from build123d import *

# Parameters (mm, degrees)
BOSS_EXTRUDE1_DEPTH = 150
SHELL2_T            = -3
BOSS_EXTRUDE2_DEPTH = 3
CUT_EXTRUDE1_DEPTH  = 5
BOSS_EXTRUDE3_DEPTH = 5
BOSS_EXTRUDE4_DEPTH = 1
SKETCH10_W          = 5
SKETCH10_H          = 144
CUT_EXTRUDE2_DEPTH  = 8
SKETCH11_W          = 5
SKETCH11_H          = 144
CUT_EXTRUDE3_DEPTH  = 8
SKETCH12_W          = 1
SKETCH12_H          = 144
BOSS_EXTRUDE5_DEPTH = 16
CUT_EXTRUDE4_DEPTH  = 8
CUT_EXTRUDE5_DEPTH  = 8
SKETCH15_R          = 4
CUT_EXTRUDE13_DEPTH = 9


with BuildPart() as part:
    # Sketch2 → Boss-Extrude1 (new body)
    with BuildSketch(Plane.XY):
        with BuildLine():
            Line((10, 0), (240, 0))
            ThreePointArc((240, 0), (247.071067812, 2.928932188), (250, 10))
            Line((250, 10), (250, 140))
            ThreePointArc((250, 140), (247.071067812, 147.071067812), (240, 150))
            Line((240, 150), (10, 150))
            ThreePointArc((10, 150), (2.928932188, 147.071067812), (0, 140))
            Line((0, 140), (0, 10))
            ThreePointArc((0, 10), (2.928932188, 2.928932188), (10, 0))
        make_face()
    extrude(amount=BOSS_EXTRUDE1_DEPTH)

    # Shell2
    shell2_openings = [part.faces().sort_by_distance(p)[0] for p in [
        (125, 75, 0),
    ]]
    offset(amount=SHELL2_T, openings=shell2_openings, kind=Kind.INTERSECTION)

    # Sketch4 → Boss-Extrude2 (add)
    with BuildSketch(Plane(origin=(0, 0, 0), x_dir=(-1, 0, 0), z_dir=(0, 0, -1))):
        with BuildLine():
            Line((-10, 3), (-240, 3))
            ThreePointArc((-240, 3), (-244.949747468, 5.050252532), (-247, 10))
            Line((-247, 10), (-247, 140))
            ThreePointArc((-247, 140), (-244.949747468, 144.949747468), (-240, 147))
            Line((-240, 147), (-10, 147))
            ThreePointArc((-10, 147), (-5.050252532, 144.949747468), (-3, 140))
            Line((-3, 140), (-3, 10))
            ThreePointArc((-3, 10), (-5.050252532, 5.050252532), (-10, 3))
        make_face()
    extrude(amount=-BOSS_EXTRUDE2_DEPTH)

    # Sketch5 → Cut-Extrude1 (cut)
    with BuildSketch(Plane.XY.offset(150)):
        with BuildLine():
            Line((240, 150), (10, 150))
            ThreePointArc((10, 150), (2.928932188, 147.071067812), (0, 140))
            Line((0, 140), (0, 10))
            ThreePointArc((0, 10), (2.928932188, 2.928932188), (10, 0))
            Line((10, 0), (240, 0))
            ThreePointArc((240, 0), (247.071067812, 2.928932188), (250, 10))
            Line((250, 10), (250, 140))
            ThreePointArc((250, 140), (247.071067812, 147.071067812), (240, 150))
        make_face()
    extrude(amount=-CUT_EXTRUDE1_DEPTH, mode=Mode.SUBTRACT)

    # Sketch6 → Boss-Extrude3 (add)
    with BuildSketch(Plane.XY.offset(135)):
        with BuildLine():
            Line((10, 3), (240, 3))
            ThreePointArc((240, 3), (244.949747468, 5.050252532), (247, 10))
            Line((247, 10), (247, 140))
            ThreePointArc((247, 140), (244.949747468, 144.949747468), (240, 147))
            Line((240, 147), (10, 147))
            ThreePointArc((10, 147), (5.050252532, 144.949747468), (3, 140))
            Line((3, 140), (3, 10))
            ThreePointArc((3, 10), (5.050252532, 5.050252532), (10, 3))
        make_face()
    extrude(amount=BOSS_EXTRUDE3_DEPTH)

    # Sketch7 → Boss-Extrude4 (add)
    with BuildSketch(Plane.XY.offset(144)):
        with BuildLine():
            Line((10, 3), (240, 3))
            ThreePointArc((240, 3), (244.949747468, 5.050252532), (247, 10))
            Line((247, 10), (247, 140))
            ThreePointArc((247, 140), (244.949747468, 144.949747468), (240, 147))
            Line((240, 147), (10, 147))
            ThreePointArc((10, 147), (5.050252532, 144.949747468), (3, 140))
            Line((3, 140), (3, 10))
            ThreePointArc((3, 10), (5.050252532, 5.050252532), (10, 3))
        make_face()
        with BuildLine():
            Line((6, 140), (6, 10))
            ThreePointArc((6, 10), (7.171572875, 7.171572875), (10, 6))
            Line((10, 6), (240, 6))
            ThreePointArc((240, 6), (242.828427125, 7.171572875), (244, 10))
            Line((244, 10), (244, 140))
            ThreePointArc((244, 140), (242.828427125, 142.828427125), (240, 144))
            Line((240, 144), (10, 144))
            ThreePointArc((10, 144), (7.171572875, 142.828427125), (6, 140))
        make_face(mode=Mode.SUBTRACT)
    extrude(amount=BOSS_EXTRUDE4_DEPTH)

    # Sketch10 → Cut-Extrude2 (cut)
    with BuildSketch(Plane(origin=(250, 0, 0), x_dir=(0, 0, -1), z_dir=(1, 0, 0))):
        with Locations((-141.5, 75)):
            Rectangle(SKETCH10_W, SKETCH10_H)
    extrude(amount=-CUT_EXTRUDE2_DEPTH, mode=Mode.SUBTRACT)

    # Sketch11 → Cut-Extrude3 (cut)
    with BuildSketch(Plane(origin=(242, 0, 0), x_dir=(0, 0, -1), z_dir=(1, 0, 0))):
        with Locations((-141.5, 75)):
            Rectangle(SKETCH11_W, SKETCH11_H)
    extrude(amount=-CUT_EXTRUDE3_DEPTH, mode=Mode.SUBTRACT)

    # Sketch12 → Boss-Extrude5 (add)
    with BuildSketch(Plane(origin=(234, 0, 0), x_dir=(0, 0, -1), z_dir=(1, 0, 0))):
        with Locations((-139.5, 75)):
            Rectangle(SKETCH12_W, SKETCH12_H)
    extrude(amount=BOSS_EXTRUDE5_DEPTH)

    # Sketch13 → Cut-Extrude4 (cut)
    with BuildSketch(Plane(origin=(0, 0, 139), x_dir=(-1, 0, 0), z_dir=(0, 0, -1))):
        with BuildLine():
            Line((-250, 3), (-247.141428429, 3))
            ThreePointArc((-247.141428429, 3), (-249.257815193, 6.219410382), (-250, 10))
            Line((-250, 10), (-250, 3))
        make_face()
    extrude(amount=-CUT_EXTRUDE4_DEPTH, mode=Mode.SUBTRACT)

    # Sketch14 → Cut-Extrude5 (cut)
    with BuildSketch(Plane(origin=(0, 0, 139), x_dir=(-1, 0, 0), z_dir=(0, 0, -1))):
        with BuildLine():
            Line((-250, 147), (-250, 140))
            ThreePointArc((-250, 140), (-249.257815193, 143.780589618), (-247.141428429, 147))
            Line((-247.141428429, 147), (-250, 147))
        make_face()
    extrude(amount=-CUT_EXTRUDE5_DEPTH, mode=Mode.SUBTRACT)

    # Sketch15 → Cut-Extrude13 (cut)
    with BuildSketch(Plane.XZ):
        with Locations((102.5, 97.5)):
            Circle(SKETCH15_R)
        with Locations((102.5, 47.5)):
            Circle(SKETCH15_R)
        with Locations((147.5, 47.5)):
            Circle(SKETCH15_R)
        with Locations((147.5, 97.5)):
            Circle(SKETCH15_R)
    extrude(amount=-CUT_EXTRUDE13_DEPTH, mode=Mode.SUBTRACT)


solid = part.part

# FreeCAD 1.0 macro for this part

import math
import FreeCAD as App
import Part
import Sketcher


def faces_at(feature, points):
    """Names of the faces that lie closest to the given points."""
    faces = feature.Shape.Faces
    near = lambda p: min(range(len(faces)), key=lambda i: faces[i].distToShape(Part.Vertex(*p))[0])
    return sorted({f"Face{near(p) + 1}" for p in points})

doc = App.newDocument("Part")
body = doc.addObject("PartDesign::Body", "Body")

# Sketch on XY plane
sketch1 = body.newObject("Sketcher::SketchObject", "Sketch")
sketch1.AttachmentSupport = (doc.getObject("XY_Plane"), [""])
sketch1.MapMode = "FlatFace"
sketch1.addGeometry([
    Part.LineSegment(App.Vector(10, 0, 0), App.Vector(240, 0, 0)),  # 0
    Part.ArcOfCircle(Part.Circle(App.Vector(240, 10, 0), App.Vector(0, 0, 1), 10), math.radians(-90), math.radians(0)),  # 1
    Part.LineSegment(App.Vector(250, 10, 0), App.Vector(250, 140, 0)),  # 2
    Part.ArcOfCircle(Part.Circle(App.Vector(240, 140, 0), App.Vector(0, 0, 1), 10), math.radians(0), math.radians(90)),  # 3
    Part.LineSegment(App.Vector(240, 150, 0), App.Vector(10, 150, 0)),  # 4
    Part.ArcOfCircle(Part.Circle(App.Vector(10, 140, 0), App.Vector(0, 0, 1), 10), math.radians(90), math.radians(180)),  # 5
    Part.LineSegment(App.Vector(0, 140, 0), App.Vector(0, 10, 0)),  # 6
    Part.ArcOfCircle(Part.Circle(App.Vector(10, 10, 0), App.Vector(0, 0, 1), 10), math.radians(180), math.radians(270)),  # 7
], False)
sketch1.addConstraint([
    Sketcher.Constraint("Tangent", 0, 2, 1, 1),
    Sketcher.Constraint("Tangent", 1, 2, 2, 1),
    Sketcher.Constraint("Tangent", 2, 2, 3, 1),
    Sketcher.Constraint("Tangent", 3, 2, 4, 1),
    Sketcher.Constraint("Tangent", 4, 2, 5, 1),
    Sketcher.Constraint("Tangent", 5, 2, 6, 1),
    Sketcher.Constraint("Tangent", 6, 2, 7, 1),
    Sketcher.Constraint("Tangent", 7, 2, 0, 1),
    Sketcher.Constraint("Horizontal", 0),
    Sketcher.Constraint("Vertical", 2),
    Sketcher.Constraint("Horizontal", 4),
    Sketcher.Constraint("Vertical", 6),
    Sketcher.Constraint("Equal", 1, 3),
    Sketcher.Constraint("Equal", 3, 5),
    Sketcher.Constraint("Equal", 5, 7),
    Sketcher.Constraint("PointOnObject", 0, 2, -1),
    Sketcher.Constraint("PointOnObject", 5, 2, -2),
    Sketcher.Constraint("Radius", 1, 10.0),
    Sketcher.Constraint("DistanceX", 0, 1, 0, 2, 230.0),
    Sketcher.Constraint("DistanceY", 2, 1, 2, 2, 130.0),
])
pad1 = body.newObject("PartDesign::Pad", "Pad")
pad1.Profile = sketch1
pad1.Length = 150
doc.recompute()

thickness = body.newObject("PartDesign::Thickness", "Thickness")
thickness.Base = (pad1, faces_at(pad1, [(125, 75, 0)]))
thickness.Value = 3
thickness.Reversed = True
thickness.Join = "Intersection"

# Sketch on XY plane
sketch2 = body.newObject("Sketcher::SketchObject", "Sketch001")
sketch2.AttachmentSupport = (doc.getObject("XY_Plane"), [""])
sketch2.MapMode = "FlatFace"
sketch2.addGeometry([
    Part.LineSegment(App.Vector(240, 3, 0), App.Vector(10, 3, 0)),  # 0
    Part.ArcOfCircle(Part.Circle(App.Vector(10, 10, 0), App.Vector(0, 0, 1), 7), math.radians(-180), math.radians(-90)),  # 1
    Part.LineSegment(App.Vector(3, 10, 0), App.Vector(3, 140, 0)),  # 2
    Part.ArcOfCircle(Part.Circle(App.Vector(10, 140, 0), App.Vector(0, 0, 1), 7), math.radians(90), math.radians(180)),  # 3
    Part.LineSegment(App.Vector(10, 147, 0), App.Vector(240, 147, 0)),  # 4
    Part.ArcOfCircle(Part.Circle(App.Vector(240, 140, 0), App.Vector(0, 0, 1), 7), math.radians(0), math.radians(90)),  # 5
    Part.LineSegment(App.Vector(247, 140, 0), App.Vector(247, 10, 0)),  # 6
    Part.ArcOfCircle(Part.Circle(App.Vector(240, 10, 0), App.Vector(0, 0, 1), 7), math.radians(-90), math.radians(0)),  # 7
], False)
sketch2.addConstraint([
    Sketcher.Constraint("Tangent", 0, 2, 1, 2),
    Sketcher.Constraint("Tangent", 1, 1, 2, 1),
    Sketcher.Constraint("Tangent", 2, 2, 3, 2),
    Sketcher.Constraint("Tangent", 3, 1, 4, 1),
    Sketcher.Constraint("Tangent", 4, 2, 5, 2),
    Sketcher.Constraint("Tangent", 5, 1, 6, 1),
    Sketcher.Constraint("Tangent", 6, 2, 7, 2),
    Sketcher.Constraint("Tangent", 7, 1, 0, 1),
    Sketcher.Constraint("Horizontal", 0),
    Sketcher.Constraint("Vertical", 2),
    Sketcher.Constraint("Horizontal", 4),
    Sketcher.Constraint("Vertical", 6),
    Sketcher.Constraint("Equal", 1, 3),
    Sketcher.Constraint("Equal", 3, 5),
    Sketcher.Constraint("Equal", 5, 7),
    Sketcher.Constraint("Radius", 1, 7.0),
    Sketcher.Constraint("DistanceX", 0, 2, 0, 1, 230.0),
    Sketcher.Constraint("DistanceY", 2, 1, 2, 2, 130.0),
    Sketcher.Constraint("DistanceX", -1, 1, 1, 3, 10.0),
    Sketcher.Constraint("DistanceY", -1, 1, 1, 3, 10.0),
])
pad2 = body.newObject("PartDesign::Pad", "Pad001")
pad2.Profile = sketch2
pad2.Length = 3

# Sketch on XY plane
sketch3 = body.newObject("Sketcher::SketchObject", "Sketch002")
sketch3.AttachmentSupport = (doc.getObject("XY_Plane"), [""])
sketch3.MapMode = "FlatFace"
sketch3.AttachmentOffset = App.Placement(App.Vector(0, 0, 150), App.Rotation())
sketch3.addGeometry([
    Part.LineSegment(App.Vector(240, 150, 0), App.Vector(10, 150, 0)),  # 0
    Part.ArcOfCircle(Part.Circle(App.Vector(10, 140, 0), App.Vector(0, 0, 1), 10), math.radians(90), math.radians(180)),  # 1
    Part.LineSegment(App.Vector(0, 140, 0), App.Vector(0, 10, 0)),  # 2
    Part.ArcOfCircle(Part.Circle(App.Vector(10, 10, 0), App.Vector(0, 0, 1), 10), math.radians(180), math.radians(270)),  # 3
    Part.LineSegment(App.Vector(10, 0, 0), App.Vector(240, 0, 0)),  # 4
    Part.ArcOfCircle(Part.Circle(App.Vector(240, 10, 0), App.Vector(0, 0, 1), 10), math.radians(-90), math.radians(0)),  # 5
    Part.LineSegment(App.Vector(250, 10, 0), App.Vector(250, 140, 0)),  # 6
    Part.ArcOfCircle(Part.Circle(App.Vector(240, 140, 0), App.Vector(0, 0, 1), 10), math.radians(0), math.radians(90)),  # 7
], False)
sketch3.addConstraint([
    Sketcher.Constraint("Tangent", 0, 2, 1, 1),
    Sketcher.Constraint("Tangent", 1, 2, 2, 1),
    Sketcher.Constraint("Tangent", 2, 2, 3, 1),
    Sketcher.Constraint("Tangent", 3, 2, 4, 1),
    Sketcher.Constraint("Tangent", 4, 2, 5, 1),
    Sketcher.Constraint("Tangent", 5, 2, 6, 1),
    Sketcher.Constraint("Tangent", 6, 2, 7, 1),
    Sketcher.Constraint("Tangent", 7, 2, 0, 1),
    Sketcher.Constraint("Horizontal", 0),
    Sketcher.Constraint("Vertical", 2),
    Sketcher.Constraint("Horizontal", 4),
    Sketcher.Constraint("Vertical", 6),
    Sketcher.Constraint("Equal", 1, 3),
    Sketcher.Constraint("Equal", 3, 5),
    Sketcher.Constraint("Equal", 5, 7),
    Sketcher.Constraint("PointOnObject", 1, 2, -2),
    Sketcher.Constraint("PointOnObject", 3, 2, -1),
    Sketcher.Constraint("Radius", 1, 10.0),
    Sketcher.Constraint("DistanceX", 0, 2, 0, 1, 230.0),
    Sketcher.Constraint("DistanceY", 2, 2, 2, 1, 130.0),
])
pocket1 = body.newObject("PartDesign::Pocket", "Pocket")
pocket1.Profile = sketch3
pocket1.Length = 5

# Sketch on XY plane
sketch4 = body.newObject("Sketcher::SketchObject", "Sketch003")
sketch4.AttachmentSupport = (doc.getObject("XY_Plane"), [""])
sketch4.MapMode = "FlatFace"
sketch4.AttachmentOffset = App.Placement(App.Vector(0, 0, 135), App.Rotation())
sketch4.addGeometry([
    Part.LineSegment(App.Vector(10, 3, 0), App.Vector(240, 3, 0)),  # 0
    Part.ArcOfCircle(Part.Circle(App.Vector(240, 10, 0), App.Vector(0, 0, 1), 7), math.radians(-90), math.radians(0)),  # 1
    Part.LineSegment(App.Vector(247, 10, 0), App.Vector(247, 140, 0)),  # 2
    Part.ArcOfCircle(Part.Circle(App.Vector(240, 140, 0), App.Vector(0, 0, 1), 7), math.radians(0), math.radians(90)),  # 3
    Part.LineSegment(App.Vector(240, 147, 0), App.Vector(10, 147, 0)),  # 4
    Part.ArcOfCircle(Part.Circle(App.Vector(10, 140, 0), App.Vector(0, 0, 1), 7), math.radians(90), math.radians(180)),  # 5
    Part.LineSegment(App.Vector(3, 140, 0), App.Vector(3, 10, 0)),  # 6
    Part.ArcOfCircle(Part.Circle(App.Vector(10, 10, 0), App.Vector(0, 0, 1), 7), math.radians(-180), math.radians(-90)),  # 7
], False)
sketch4.addConstraint([
    Sketcher.Constraint("Tangent", 0, 2, 1, 1),
    Sketcher.Constraint("Tangent", 1, 2, 2, 1),
    Sketcher.Constraint("Tangent", 2, 2, 3, 1),
    Sketcher.Constraint("Tangent", 3, 2, 4, 1),
    Sketcher.Constraint("Tangent", 4, 2, 5, 1),
    Sketcher.Constraint("Tangent", 5, 2, 6, 1),
    Sketcher.Constraint("Tangent", 6, 2, 7, 1),
    Sketcher.Constraint("Tangent", 7, 2, 0, 1),
    Sketcher.Constraint("Horizontal", 0),
    Sketcher.Constraint("Vertical", 2),
    Sketcher.Constraint("Horizontal", 4),
    Sketcher.Constraint("Vertical", 6),
    Sketcher.Constraint("Equal", 1, 3),
    Sketcher.Constraint("Equal", 3, 5),
    Sketcher.Constraint("Equal", 5, 7),
    Sketcher.Constraint("Radius", 1, 7.0),
    Sketcher.Constraint("DistanceX", 0, 1, 0, 2, 230.0),
    Sketcher.Constraint("DistanceY", 2, 1, 2, 2, 130.0),
    Sketcher.Constraint("DistanceX", -1, 1, 1, 3, 240.0),
    Sketcher.Constraint("DistanceY", -1, 1, 1, 3, 10.0),
])
pad3 = body.newObject("PartDesign::Pad", "Pad002")
pad3.Profile = sketch4
pad3.Length = 5

# Sketch on XY plane
sketch5 = body.newObject("Sketcher::SketchObject", "Sketch004")
sketch5.AttachmentSupport = (doc.getObject("XY_Plane"), [""])
sketch5.MapMode = "FlatFace"
sketch5.AttachmentOffset = App.Placement(App.Vector(0, 0, 144), App.Rotation())
sketch5.addGeometry([
    Part.LineSegment(App.Vector(10, 3, 0), App.Vector(240, 3, 0)),  # 0
    Part.ArcOfCircle(Part.Circle(App.Vector(240, 10, 0), App.Vector(0, 0, 1), 7), math.radians(-90), math.radians(0)),  # 1
    Part.LineSegment(App.Vector(247, 10, 0), App.Vector(247, 140, 0)),  # 2
    Part.ArcOfCircle(Part.Circle(App.Vector(240, 140, 0), App.Vector(0, 0, 1), 7), math.radians(0), math.radians(90)),  # 3
    Part.LineSegment(App.Vector(240, 147, 0), App.Vector(10, 147, 0)),  # 4
    Part.ArcOfCircle(Part.Circle(App.Vector(10, 140, 0), App.Vector(0, 0, 1), 7), math.radians(90), math.radians(180)),  # 5
    Part.LineSegment(App.Vector(3, 140, 0), App.Vector(3, 10, 0)),  # 6
    Part.ArcOfCircle(Part.Circle(App.Vector(10, 10, 0), App.Vector(0, 0, 1), 7), math.radians(-180), math.radians(-90)),  # 7
    Part.LineSegment(App.Vector(6, 10, 0), App.Vector(6, 140, 0)),  # 8
    Part.ArcOfCircle(Part.Circle(App.Vector(10, 140, 0), App.Vector(0, 0, 1), 4), math.radians(90), math.radians(180)),  # 9
    Part.LineSegment(App.Vector(10, 144, 0), App.Vector(240, 144, 0)),  # 10
    Part.ArcOfCircle(Part.Circle(App.Vector(240, 140, 0), App.Vector(0, 0, 1), 4), math.radians(0), math.radians(90)),  # 11
    Part.LineSegment(App.Vector(244, 140, 0), App.Vector(244, 10, 0)),  # 12
    Part.ArcOfCircle(Part.Circle(App.Vector(240, 10, 0), App.Vector(0, 0, 1), 4), math.radians(-90), math.radians(0)),  # 13
    Part.LineSegment(App.Vector(240, 6, 0), App.Vector(10, 6, 0)),  # 14
    Part.ArcOfCircle(Part.Circle(App.Vector(10, 10, 0), App.Vector(0, 0, 1), 4), math.radians(180), math.radians(270)),  # 15
], False)
sketch5.addConstraint([
    Sketcher.Constraint("Tangent", 0, 2, 1, 1),
    Sketcher.Constraint("Tangent", 1, 2, 2, 1),
    Sketcher.Constraint("Tangent", 2, 2, 3, 1),
    Sketcher.Constraint("Tangent", 3, 2, 4, 1),
    Sketcher.Constraint("Tangent", 4, 2, 5, 1),
    Sketcher.Constraint("Tangent", 5, 2, 6, 1),
    Sketcher.Constraint("Tangent", 6, 2, 7, 1),
    Sketcher.Constraint("Tangent", 7, 2, 0, 1),
    Sketcher.Constraint("Tangent", 8, 2, 9, 2),
    Sketcher.Constraint("Tangent", 9, 1, 10, 1),
    Sketcher.Constraint("Tangent", 10, 2, 11, 2),
    Sketcher.Constraint("Tangent", 11, 1, 12, 1),
    Sketcher.Constraint("Tangent", 12, 2, 13, 2),
    Sketcher.Constraint("Tangent", 13, 1, 14, 1),
    Sketcher.Constraint("Tangent", 14, 2, 15, 2),
    Sketcher.Constraint("Tangent", 15, 1, 8, 1),
    Sketcher.Constraint("Horizontal", 0),
    Sketcher.Constraint("Vertical", 2),
    Sketcher.Constraint("Horizontal", 4),
    Sketcher.Constraint("Vertical", 6),
    Sketcher.Constraint("Vertical", 8),
    Sketcher.Constraint("Horizontal", 10),
    Sketcher.Constraint("Vertical", 12),
    Sketcher.Constraint("Horizontal", 14),
    Sketcher.Constraint("Coincident", 9, 3, 5, 3),
    Sketcher.Constraint("Coincident", 11, 3, 3, 3),
    Sketcher.Constraint("Coincident", 13, 3, 1, 3),
    Sketcher.Constraint("Equal", 1, 3),
    Sketcher.Constraint("Equal", 3, 5),
    Sketcher.Constraint("Equal", 5, 7),
    Sketcher.Constraint("Equal", 13, 15),
    Sketcher.Constraint("Radius", 1, 7.0),
    Sketcher.Constraint("Radius", 9, 4.0),
    Sketcher.Constraint("DistanceX", 0, 1, 0, 2, 230.0),
    Sketcher.Constraint("DistanceY", 2, 1, 2, 2, 130.0),
    Sketcher.Constraint("DistanceX", -1, 1, 1, 3, 240.0),
    Sketcher.Constraint("DistanceY", -1, 1, 1, 3, 10.0),
])
pad4 = body.newObject("PartDesign::Pad", "Pad003")
pad4.Profile = sketch5
pad4.Length = 1

# Sketch on YZ plane
sketch6 = body.newObject("Sketcher::SketchObject", "Sketch005")
sketch6.AttachmentSupport = (doc.getObject("YZ_Plane"), [""])
sketch6.MapMode = "FlatFace"
sketch6.AttachmentOffset = App.Placement(App.Vector(0, 0, 250), App.Rotation())
sketch6.addGeometry([
    Part.LineSegment(App.Vector(147, 144, 0), App.Vector(3, 144, 0)),
    Part.LineSegment(App.Vector(3, 144, 0), App.Vector(3, 139, 0)),
    Part.LineSegment(App.Vector(3, 139, 0), App.Vector(147, 139, 0)),
    Part.LineSegment(App.Vector(147, 139, 0), App.Vector(147, 144, 0)),
], False)
sketch6.addConstraint([
    Sketcher.Constraint("Coincident", 0, 2, 1, 1),
    Sketcher.Constraint("Coincident", 1, 2, 2, 1),
    Sketcher.Constraint("Coincident", 2, 2, 3, 1),
    Sketcher.Constraint("Coincident", 3, 2, 0, 1),
    Sketcher.Constraint("Horizontal", 0),
    Sketcher.Constraint("Vertical", 1),
    Sketcher.Constraint("Horizontal", 2),
    Sketcher.Constraint("Vertical", 3),
    Sketcher.Constraint("DistanceX", 0, 2, 0, 1, 144.0),
    Sketcher.Constraint("DistanceY", 1, 2, 1, 1, 5.0),
    Sketcher.Constraint("DistanceX", -1, 1, 0, 2, 3.0),
    Sketcher.Constraint("DistanceY", -1, 1, 0, 2, 144.0),
])
pocket2 = body.newObject("PartDesign::Pocket", "Pocket001")
pocket2.Profile = sketch6
pocket2.Length = 8

# Sketch on YZ plane
sketch7 = body.newObject("Sketcher::SketchObject", "Sketch006")
sketch7.AttachmentSupport = (doc.getObject("YZ_Plane"), [""])
sketch7.MapMode = "FlatFace"
sketch7.AttachmentOffset = App.Placement(App.Vector(0, 0, 242), App.Rotation())
sketch7.addGeometry([
    Part.LineSegment(App.Vector(147, 144, 0), App.Vector(3, 144, 0)),
    Part.LineSegment(App.Vector(3, 144, 0), App.Vector(3, 139, 0)),
    Part.LineSegment(App.Vector(3, 139, 0), App.Vector(147, 139, 0)),
    Part.LineSegment(App.Vector(147, 139, 0), App.Vector(147, 144, 0)),
], False)
sketch7.addConstraint([
    Sketcher.Constraint("Coincident", 0, 2, 1, 1),
    Sketcher.Constraint("Coincident", 1, 2, 2, 1),
    Sketcher.Constraint("Coincident", 2, 2, 3, 1),
    Sketcher.Constraint("Coincident", 3, 2, 0, 1),
    Sketcher.Constraint("Horizontal", 0),
    Sketcher.Constraint("Vertical", 1),
    Sketcher.Constraint("Horizontal", 2),
    Sketcher.Constraint("Vertical", 3),
    Sketcher.Constraint("DistanceX", 0, 2, 0, 1, 144.0),
    Sketcher.Constraint("DistanceY", 1, 2, 1, 1, 5.0),
    Sketcher.Constraint("DistanceX", -1, 1, 0, 2, 3.0),
    Sketcher.Constraint("DistanceY", -1, 1, 0, 2, 144.0),
])
pocket3 = body.newObject("PartDesign::Pocket", "Pocket002")
pocket3.Profile = sketch7
pocket3.Length = 8

# Sketch on YZ plane
sketch8 = body.newObject("Sketcher::SketchObject", "Sketch007")
sketch8.AttachmentSupport = (doc.getObject("YZ_Plane"), [""])
sketch8.MapMode = "FlatFace"
sketch8.AttachmentOffset = App.Placement(App.Vector(0, 0, 234), App.Rotation())
sketch8.addGeometry([
    Part.LineSegment(App.Vector(147, 140, 0), App.Vector(3, 140, 0)),
    Part.LineSegment(App.Vector(3, 140, 0), App.Vector(3, 139, 0)),
    Part.LineSegment(App.Vector(3, 139, 0), App.Vector(147, 139, 0)),
    Part.LineSegment(App.Vector(147, 139, 0), App.Vector(147, 140, 0)),
], False)
sketch8.addConstraint([
    Sketcher.Constraint("Coincident", 0, 2, 1, 1),
    Sketcher.Constraint("Coincident", 1, 2, 2, 1),
    Sketcher.Constraint("Coincident", 2, 2, 3, 1),
    Sketcher.Constraint("Coincident", 3, 2, 0, 1),
    Sketcher.Constraint("Horizontal", 0),
    Sketcher.Constraint("Vertical", 1),
    Sketcher.Constraint("Horizontal", 2),
    Sketcher.Constraint("Vertical", 3),
    Sketcher.Constraint("DistanceX", 0, 2, 0, 1, 144.0),
    Sketcher.Constraint("DistanceY", 1, 2, 1, 1, 1.0),
    Sketcher.Constraint("DistanceX", -1, 1, 0, 2, 3.0),
    Sketcher.Constraint("DistanceY", -1, 1, 0, 2, 140.0),
])
pad5 = body.newObject("PartDesign::Pad", "Pad004")
pad5.Profile = sketch8
pad5.Length = 16

# Sketch on XY plane
sketch9 = body.newObject("Sketcher::SketchObject", "Sketch008")
sketch9.AttachmentSupport = (doc.getObject("XY_Plane"), [""])
sketch9.MapMode = "FlatFace"
sketch9.AttachmentOffset = App.Placement(App.Vector(0, 0, 139), App.Rotation())
sketch9.addGeometry([
    Part.LineSegment(App.Vector(250, 3, 0), App.Vector(247.1, 3, 0)),
    Part.ArcOfCircle(Part.Circle(App.Vector(240, 10, 0), App.Vector(0, 0, 1), 10), math.radians(-44), math.radians(0)),
    Part.LineSegment(App.Vector(250, 10, 0), App.Vector(250, 3, 0)),
], False)
sketch9.addConstraint([
    Sketcher.Constraint("Coincident", 0, 2, 1, 1),
    Sketcher.Constraint("Tangent", 1, 2, 2, 1),
    Sketcher.Constraint("Coincident", 2, 2, 0, 1),
    Sketcher.Constraint("Horizontal", 0),
    Sketcher.Constraint("Vertical", 2),
    Sketcher.Constraint("Radius", 1, 10.0),
    Sketcher.Constraint("DistanceY", 2, 2, 2, 1, 7.0),
    Sketcher.Constraint("DistanceX", -1, 1, 1, 3, 240.0),
    Sketcher.Constraint("DistanceY", -1, 1, 1, 3, 10.0),
])
pocket4 = body.newObject("PartDesign::Pocket", "Pocket003")
pocket4.Profile = sketch9
pocket4.Length = 8
pocket4.Reversed = True

# Sketch on XY plane
sketch10 = body.newObject("Sketcher::SketchObject", "Sketch009")
sketch10.AttachmentSupport = (doc.getObject("XY_Plane"), [""])
sketch10.MapMode = "FlatFace"
sketch10.AttachmentOffset = App.Placement(App.Vector(0, 0, 139), App.Rotation())
sketch10.addGeometry([
    Part.LineSegment(App.Vector(250, 147, 0), App.Vector(250, 140, 0)),
    Part.ArcOfCircle(Part.Circle(App.Vector(240, 140, 0), App.Vector(0, 0, 1), 10), math.radians(0), math.radians(44)),
    Part.LineSegment(App.Vector(247.1, 147, 0), App.Vector(250, 147, 0)),
], False)
sketch10.addConstraint([
    Sketcher.Constraint("Tangent", 0, 2, 1, 1),
    Sketcher.Constraint("Coincident", 1, 2, 2, 1),
    Sketcher.Constraint("Coincident", 2, 2, 0, 1),
    Sketcher.Constraint("Vertical", 0),
    Sketcher.Constraint("Horizontal", 2),
    Sketcher.Constraint("Radius", 1, 10.0),
    Sketcher.Constraint("DistanceY", 0, 2, 0, 1, 7.0),
    Sketcher.Constraint("DistanceX", -1, 1, 1, 3, 240.0),
    Sketcher.Constraint("DistanceY", -1, 1, 1, 3, 140.0),
])
pocket5 = body.newObject("PartDesign::Pocket", "Pocket004")
pocket5.Profile = sketch10
pocket5.Length = 8
pocket5.Reversed = True

# Sketch on XZ plane
sketch11 = body.newObject("Sketcher::SketchObject", "Sketch010")
sketch11.AttachmentSupport = (doc.getObject("XZ_Plane"), [""])
sketch11.MapMode = "FlatFace"
sketch11.addGeometry([
    Part.Circle(App.Vector(102.5, 97.5, 0), App.Vector(0, 0, 1), 4),
    Part.Circle(App.Vector(102.5, 47.5, 0), App.Vector(0, 0, 1), 4),
    Part.Circle(App.Vector(147.5, 47.5, 0), App.Vector(0, 0, 1), 4),
    Part.Circle(App.Vector(147.5, 97.5, 0), App.Vector(0, 0, 1), 4),
], False)
sketch11.addConstraint([
    Sketcher.Constraint("Equal", 0, 1),
    Sketcher.Constraint("Equal", 1, 2),
    Sketcher.Constraint("Equal", 2, 3),
    Sketcher.Constraint("Horizontal", 1, 3, 2, 3),
    Sketcher.Constraint("Horizontal", 0, 3, 3, 3),
    Sketcher.Constraint("Vertical", 0, 3, 1, 3),
    Sketcher.Constraint("Vertical", 2, 3, 3, 3),
    Sketcher.Constraint("Diameter", 0, 8.0),
    Sketcher.Constraint("DistanceY", 1, 3, 0, 3, 50.0),
    Sketcher.Constraint("DistanceX", 1, 3, 2, 3, 45.0),
    Sketcher.Constraint("DistanceX", -1, 1, 0, 3, 102.5),
    Sketcher.Constraint("DistanceY", -1, 1, 0, 3, 97.5),
])
pocket6 = body.newObject("PartDesign::Pocket", "Pocket005")
pocket6.Profile = sketch11
pocket6.Length = 9

doc.recompute()
